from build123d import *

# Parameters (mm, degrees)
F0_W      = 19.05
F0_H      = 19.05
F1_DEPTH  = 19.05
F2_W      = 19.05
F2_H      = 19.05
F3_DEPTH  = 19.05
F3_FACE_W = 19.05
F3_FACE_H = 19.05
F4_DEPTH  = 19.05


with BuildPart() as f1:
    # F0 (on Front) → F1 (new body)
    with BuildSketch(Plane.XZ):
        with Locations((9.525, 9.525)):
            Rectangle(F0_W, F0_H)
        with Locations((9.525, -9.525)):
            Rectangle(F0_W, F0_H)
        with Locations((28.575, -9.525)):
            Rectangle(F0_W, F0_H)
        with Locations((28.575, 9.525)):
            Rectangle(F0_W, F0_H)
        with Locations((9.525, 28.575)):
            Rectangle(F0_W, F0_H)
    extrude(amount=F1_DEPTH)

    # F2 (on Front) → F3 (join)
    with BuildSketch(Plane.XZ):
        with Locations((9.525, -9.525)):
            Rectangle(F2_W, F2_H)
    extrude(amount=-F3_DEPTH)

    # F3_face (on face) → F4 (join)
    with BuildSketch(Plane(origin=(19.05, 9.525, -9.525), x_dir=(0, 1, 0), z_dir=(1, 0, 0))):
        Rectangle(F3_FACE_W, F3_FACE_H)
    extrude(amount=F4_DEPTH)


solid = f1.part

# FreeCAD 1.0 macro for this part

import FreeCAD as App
import Part
import Sketcher
Q = App.Units.Quantity

doc = App.newDocument("Part")
params = doc.addObject("Spreadsheet::Sheet", "Params")
for row, (alias, value) in enumerate([
    ("sketch1_width", "1.5 in"),
    ("pad1_length", "0.75 in"),
    ("sketch2_width", "0.75 in"),
    ("pad2_length", "0.75 in"),
    ("sketch3_width", "0.75 in"),
    ("pad3_length", "0.75 in"),
], start=1):
    params.set(f"A{row}", alias)
    params.set(f"B{row}", "=" + value)
    params.setAlias(f"B{row}", alias)

body = doc.addObject("PartDesign::Body", "Body")

# Sketch on XZ plane
sketch1 = body.newObject("Sketcher::SketchObject", "Sketch")
sketch1.AttachmentSupport = (doc.getObject("XZ_Plane"), [""])
sketch1.MapMode = "FlatFace"
sketch1.addGeometry(Part.LineSegment(App.Vector(0, -19, 0), App.Vector(38, -19, 0)), False)
sketch1.addGeometry(Part.LineSegment(App.Vector(38, -19, 0), App.Vector(38, 19, 0)), False)
sketch1.addGeometry(Part.LineSegment(App.Vector(38, 19, 0), App.Vector(19, 19, 0)), False)
sketch1.addGeometry(Part.LineSegment(App.Vector(19, 19, 0), App.Vector(19, 38, 0)), False)
sketch1.addGeometry(Part.LineSegment(App.Vector(19, 38, 0), App.Vector(0, 38, 0)), False)
sketch1.addGeometry(Part.LineSegment(App.Vector(0, 38, 0), App.Vector(0, -19, 0)), False)
sketch1.addConstraint(Sketcher.Constraint("Coincident", 0, 2, 1, 1))
sketch1.addConstraint(Sketcher.Constraint("Coincident", 1, 2, 2, 1))
sketch1.addConstraint(Sketcher.Constraint("Coincident", 2, 2, 3, 1))
sketch1.addConstraint(Sketcher.Constraint("Coincident", 3, 2, 4, 1))
sketch1.addConstraint(Sketcher.Constraint("Coincident", 4, 2, 5, 1))
sketch1.addConstraint(Sketcher.Constraint("Coincident", 5, 2, 0, 1))
sketch1.addConstraint(Sketcher.Constraint("Horizontal", 0))
sketch1.addConstraint(Sketcher.Constraint("Vertical", 1))
sketch1.addConstraint(Sketcher.Constraint("Horizontal", 2))
sketch1.addConstraint(Sketcher.Constraint("Vertical", 3))
sketch1.addConstraint(Sketcher.Constraint("Horizontal", 4))
sketch1.addConstraint(Sketcher.Constraint("Vertical", 5))
sketch1.addConstraint(Sketcher.Constraint("PointOnObject", 4, 2, -2))
sketch1.addConstraint(Sketcher.Constraint("Equal", 2, 4))
sketch1.addConstraint(Sketcher.Constraint("Equal", 0, 1))
sketch1.addConstraint(Sketcher.Constraint("Equal", 4, 3))
sketch1.addConstraint(Sketcher.Constraint("DistanceX", 0, 1, 0, 2, Q("1.5 in")))
sketch1.addConstraint(Sketcher.Constraint("DistanceY", -1, 1, 3, 2, Q("1.5 in")))
sketch1.setExpression("Constraints[16]", "Params.sketch1_width")
pad1 = body.newObject("PartDesign::Pad", "Pad")
pad1.Profile = sketch1
pad1.setExpression("Length", "Params.pad1_length")

# Sketch on XZ plane
sketch2 = body.newObject("Sketcher::SketchObject", "Sketch001")
sketch2.AttachmentSupport = (doc.getObject("XZ_Plane"), [""])
sketch2.MapMode = "FlatFace"
sketch2.addGeometry(Part.LineSegment(App.Vector(0, 0, 0), App.Vector(0, -19, 0)), False)
sketch2.addGeometry(Part.LineSegment(App.Vector(0, -19, 0), App.Vector(19, -19, 0)), False)
sketch2.addGeometry(Part.LineSegment(App.Vector(19, -19, 0), App.Vector(19, 0, 0)), False)
sketch2.addGeometry(Part.LineSegment(App.Vector(19, 0, 0), App.Vector(0, 0, 0)), False)
sketch2.addConstraint(Sketcher.Constraint("Coincident", 0, 2, 1, 1))
sketch2.addConstraint(Sketcher.Constraint("Coincident", 1, 2, 2, 1))
sketch2.addConstraint(Sketcher.Constraint("Coincident", 2, 2, 3, 1))
sketch2.addConstraint(Sketcher.Constraint("Coincident", 3, 2, 0, 1))
sketch2.addConstraint(Sketcher.Constraint("Vertical", 0))
sketch2.addConstraint(Sketcher.Constraint("Horizontal", 1))
sketch2.addConstraint(Sketcher.Constraint("Vertical", 2))
sketch2.addConstraint(Sketcher.Constraint("Horizontal", 3))
sketch2.addConstraint(Sketcher.Constraint("Coincident", 3, 2, -1, 1))
sketch2.addConstraint(Sketcher.Constraint("Equal", 3, 0))
sketch2.addConstraint(Sketcher.Constraint("DistanceX", 1, 1, 1, 2, Q("0.75 in")))
sketch2.setExpression("Constraints[10]", "Params.sketch2_width")
pad2 = body.newObject("PartDesign::Pad", "Pad001")
pad2.Profile = sketch2
pad2.setExpression("Length", "Params.pad2_length")
pad2.Reversed = True

# Sketch on YZ plane
sketch3 = body.newObject("Sketcher::SketchObject", "Sketch002")
sketch3.AttachmentSupport = (doc.getObject("YZ_Plane"), [""])
sketch3.MapMode = "FlatFace"
sketch3.AttachmentOffset = App.Placement(App.Vector(0, 0, 0.75 * 25.4), App.Rotation())
sketch3.addGeometry(Part.LineSegment(App.Vector(0, 0, 0), App.Vector(0, -19, 0)), False)
sketch3.addGeometry(Part.LineSegment(App.Vector(0, -19, 0), App.Vector(19, -19, 0)), False)
sketch3.addGeometry(Part.LineSegment(App.Vector(19, -19, 0), App.Vector(19, 0, 0)), False)
sketch3.addGeometry(Part.LineSegment(App.Vector(19, 0, 0), App.Vector(0, 0, 0)), False)
sketch3.addConstraint(Sketcher.Constraint("Coincident", 0, 2, 1, 1))
sketch3.addConstraint(Sketcher.Constraint("Coincident", 1, 2, 2, 1))
sketch3.addConstraint(Sketcher.Constraint("Coincident", 2, 2, 3, 1))
sketch3.addConstraint(Sketcher.Constraint("Coincident", 3, 2, 0, 1))
sketch3.addConstraint(Sketcher.Constraint("Vertical", 0))
sketch3.addConstraint(Sketcher.Constraint("Horizontal", 1))
sketch3.addConstraint(Sketcher.Constraint("Vertical", 2))
sketch3.addConstraint(Sketcher.Constraint("Horizontal", 3))
sketch3.addConstraint(Sketcher.Constraint("Coincident", 3, 2, -1, 1))
sketch3.addConstraint(Sketcher.Constraint("Equal", 3, 0))
sketch3.addConstraint(Sketcher.Constraint("DistanceX", 1, 1, 1, 2, Q("0.75 in")))
sketch3.setExpression("Constraints[10]", "Params.sketch3_width")
pad3 = body.newObject("PartDesign::Pad", "Pad002")
pad3.Profile = sketch3
pad3.setExpression("Length", "Params.pad3_length")

doc.recompute()
